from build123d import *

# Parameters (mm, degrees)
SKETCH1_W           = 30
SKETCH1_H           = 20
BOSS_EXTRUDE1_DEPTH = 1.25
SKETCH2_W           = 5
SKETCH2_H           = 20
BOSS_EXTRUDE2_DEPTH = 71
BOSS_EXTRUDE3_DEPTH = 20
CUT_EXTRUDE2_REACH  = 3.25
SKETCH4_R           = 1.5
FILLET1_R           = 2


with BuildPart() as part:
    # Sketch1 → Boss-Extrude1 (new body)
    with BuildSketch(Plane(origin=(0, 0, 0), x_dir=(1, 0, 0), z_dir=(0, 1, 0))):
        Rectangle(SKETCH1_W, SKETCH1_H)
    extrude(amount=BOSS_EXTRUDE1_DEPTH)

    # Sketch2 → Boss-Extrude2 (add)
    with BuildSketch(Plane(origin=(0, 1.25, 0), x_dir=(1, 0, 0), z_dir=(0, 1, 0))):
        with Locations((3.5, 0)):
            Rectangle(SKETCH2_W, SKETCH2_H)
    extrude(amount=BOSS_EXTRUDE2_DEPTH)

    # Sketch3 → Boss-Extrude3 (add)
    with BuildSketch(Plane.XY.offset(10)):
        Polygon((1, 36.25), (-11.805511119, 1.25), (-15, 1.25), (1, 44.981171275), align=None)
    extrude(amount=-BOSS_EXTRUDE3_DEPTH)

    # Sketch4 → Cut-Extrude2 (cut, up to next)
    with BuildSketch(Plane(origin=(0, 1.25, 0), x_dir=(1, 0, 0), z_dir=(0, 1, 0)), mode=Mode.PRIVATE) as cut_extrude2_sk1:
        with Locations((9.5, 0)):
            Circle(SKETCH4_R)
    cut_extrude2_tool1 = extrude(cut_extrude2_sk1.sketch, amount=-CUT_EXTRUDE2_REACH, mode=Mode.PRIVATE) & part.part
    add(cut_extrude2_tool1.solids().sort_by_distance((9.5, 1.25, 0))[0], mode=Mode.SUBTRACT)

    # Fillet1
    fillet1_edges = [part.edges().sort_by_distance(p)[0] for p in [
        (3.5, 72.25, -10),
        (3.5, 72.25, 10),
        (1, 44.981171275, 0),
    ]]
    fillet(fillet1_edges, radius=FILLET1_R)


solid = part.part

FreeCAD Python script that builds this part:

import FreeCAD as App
import Part
import Sketcher
Q = App.Units.Quantity


def edges_at(feature, points):
    """Names of the edges that pass closest to the given points."""
    edges = feature.Shape.Edges
    near = lambda p: min(range(len(edges)), key=lambda i: edges[i].distToShape(Part.Vertex(*p))[0])
    return sorted({f"Edge{near(p) + 1}" for p in points})


def add_polygon(sketch, points):
    """Adds a closed chain of lines whose ends are joined by coincident constraints."""
    first, n = sketch.GeometryCount, len(points)
    for a, b in zip(points, points[1:] + points[:1]):
        sketch.addGeometry(Part.LineSegment(App.Vector(*a, 0), App.Vector(*b, 0)), False)
    for i in range(n):
        sketch.addConstraint(Sketcher.Constraint("Coincident", first + i, 2, first + (i + 1) % n, 1))

doc = App.newDocument("Part")
body = doc.addObject("PartDesign::Body", "Body")

# Sketch on XZ plane
sketch1 = body.newObject("Sketcher::SketchObject", "Sketch")
sketch1.AttachmentSupport = (doc.getObject("XZ_Plane"), [""])
sketch1.MapMode = "FlatFace"
add_polygon(sketch1, [(-15, -10), (-15, 10), (15, 10), (15, -10)])  # lines 0-3
sketch1.addConstraint(Sketcher.Constraint("Vertical", 0))
sketch1.addConstraint(Sketcher.Constraint("Horizontal", 1))
sketch1.addConstraint(Sketcher.Constraint("Vertical", 2))
sketch1.addConstraint(Sketcher.Constraint("Horizontal", 3))
sketch1.addConstraint(Sketcher.Constraint("Symmetric", 0, 2, 2, 2, -1, 1))
sketch1.addConstraint(Sketcher.Constraint("DistanceX", 1, 1, 1, 2, Q("30 mm")))
sketch1.addConstraint(Sketcher.Constraint("DistanceY", 0, 1, 0, 2, Q("20 mm")))
pad1 = body.newObject("PartDesign::Pad", "Pad")
pad1.Profile = sketch1
pad1.Length = 1.25
pad1.Reversed = True

# Sketch on XZ plane
sketch2 = body.newObject("Sketcher::SketchObject", "Sketch001")
sketch2.AttachmentSupport = (doc.getObject("XZ_Plane"), [""])
sketch2.MapMode = "FlatFace"
sketch2.AttachmentOffset = App.Placement(App.Vector(0, 0, -1.25), App.Rotation())
add_polygon(sketch2, [(1, -10), (1, 10), (6, 10), (6, -10)])  # lines 0-3
sketch2.addConstraint(Sketcher.Constraint("Vertical", 0))
sketch2.addConstraint(Sketcher.Constraint("Horizontal", 1))
sketch2.addConstraint(Sketcher.Constraint("Vertical", 2))
sketch2.addConstraint(Sketcher.Constraint("Horizontal", 3))
sketch2.addConstraint(Sketcher.Constraint("DistanceX", 1, 1, 1, 2, Q("5 mm")))
sketch2.addConstraint(Sketcher.Constraint("DistanceY", 0, 1, 0, 2, Q("20 mm")))
sketch2.addConstraint(Sketcher.Constraint("DistanceX", -1, 1, 0, 2, Q("1 mm")))
sketch2.addConstraint(Sketcher.Constraint("DistanceY", -1, 1, 0, 2, Q("10 mm")))
pad2 = body.newObject("PartDesign::Pad", "Pad001")
pad2.Profile = sketch2
pad2.Length = 71
pad2.Reversed = True

# Sketch on XY plane
sketch3 = body.newObject("Sketcher::SketchObject", "Sketch002")
sketch3.AttachmentSupport = (doc.getObject("XY_Plane"), [""])
sketch3.MapMode = "FlatFace"
sketch3.AttachmentOffset = App.Placement(App.Vector(0, 0, 10), App.Rotation())
add_polygon(sketch3, [(-11.805511, 1.25), (1, 36.25), (1, 44.981171), (-15, 1.25)])  # lines 0-3
sketch3.addConstraint(Sketcher.Constraint("Vertical", 1))
sketch3.addConstraint(Sketcher.Constraint("Horizontal", 3))
sketch3.addConstraint(Sketcher.Constraint("Parallel", 0, 2))
sketch3.addConstraint(Sketcher.Constraint("DistanceX", -1, 1, 0, 2, Q("1 mm")))
sketch3.addConstraint(Sketcher.Constraint("DistanceX", 2, 2, -1, 1, Q("15 mm")))
sketch3.addConstraint(Sketcher.Constraint("DistanceY", 2, 2, 0, 2, Q("35 mm")))
sketch3.addConstraint(Sketcher.Constraint("DistanceY", -1, 1, 0, 2, Q("36.25 mm")))
sketch3.addConstraint(Sketcher.Constraint("DistanceX", 3, 1, 3, 2, Q("3.194489 mm")))
pad3 = body.newObject("PartDesign::Pad", "Pad002")
pad3.Profile = sketch3
pad3.Length = 20
pad3.Reversed = True

# Sketch on XZ plane
sketch4 = body.newObject("Sketcher::SketchObject", "Sketch003")
sketch4.AttachmentSupport = (doc.getObject("XZ_Plane"), [""])
sketch4.MapMode = "FlatFace"
sketch4.AttachmentOffset = App.Placement(App.Vector(0, 0, -1.25), App.Rotation())
sketch4.addGeometry(Part.Circle(App.Vector(9.5, 0, 0), App.Vector(0, 0, 1), 1.5), False)
sketch4.addConstraint(Sketcher.Constraint("PointOnObject", 0, 3, -1))
sketch4.addConstraint(Sketcher.Constraint("Diameter", 0, Q("3 mm")))
sketch4.addConstraint(Sketcher.Constraint("DistanceX", -1, 1, 0, 3, Q("9.5 mm")))
pocket1 = body.newObject("PartDesign::Pocket", "Pocket")
pocket1.Profile = sketch4
pocket1.Type = "UpToFirst"
pocket1.Reversed = True
doc.recompute()

fillet = body.newObject("PartDesign::Fillet", "Fillet")
fillet.Base = (pocket1, edges_at(pocket1, [(3.5, 72.25, -10), (3.5, 72.25, 10), (1, 44.981, 0)]))
fillet.Radius = 2

doc.recompute()
